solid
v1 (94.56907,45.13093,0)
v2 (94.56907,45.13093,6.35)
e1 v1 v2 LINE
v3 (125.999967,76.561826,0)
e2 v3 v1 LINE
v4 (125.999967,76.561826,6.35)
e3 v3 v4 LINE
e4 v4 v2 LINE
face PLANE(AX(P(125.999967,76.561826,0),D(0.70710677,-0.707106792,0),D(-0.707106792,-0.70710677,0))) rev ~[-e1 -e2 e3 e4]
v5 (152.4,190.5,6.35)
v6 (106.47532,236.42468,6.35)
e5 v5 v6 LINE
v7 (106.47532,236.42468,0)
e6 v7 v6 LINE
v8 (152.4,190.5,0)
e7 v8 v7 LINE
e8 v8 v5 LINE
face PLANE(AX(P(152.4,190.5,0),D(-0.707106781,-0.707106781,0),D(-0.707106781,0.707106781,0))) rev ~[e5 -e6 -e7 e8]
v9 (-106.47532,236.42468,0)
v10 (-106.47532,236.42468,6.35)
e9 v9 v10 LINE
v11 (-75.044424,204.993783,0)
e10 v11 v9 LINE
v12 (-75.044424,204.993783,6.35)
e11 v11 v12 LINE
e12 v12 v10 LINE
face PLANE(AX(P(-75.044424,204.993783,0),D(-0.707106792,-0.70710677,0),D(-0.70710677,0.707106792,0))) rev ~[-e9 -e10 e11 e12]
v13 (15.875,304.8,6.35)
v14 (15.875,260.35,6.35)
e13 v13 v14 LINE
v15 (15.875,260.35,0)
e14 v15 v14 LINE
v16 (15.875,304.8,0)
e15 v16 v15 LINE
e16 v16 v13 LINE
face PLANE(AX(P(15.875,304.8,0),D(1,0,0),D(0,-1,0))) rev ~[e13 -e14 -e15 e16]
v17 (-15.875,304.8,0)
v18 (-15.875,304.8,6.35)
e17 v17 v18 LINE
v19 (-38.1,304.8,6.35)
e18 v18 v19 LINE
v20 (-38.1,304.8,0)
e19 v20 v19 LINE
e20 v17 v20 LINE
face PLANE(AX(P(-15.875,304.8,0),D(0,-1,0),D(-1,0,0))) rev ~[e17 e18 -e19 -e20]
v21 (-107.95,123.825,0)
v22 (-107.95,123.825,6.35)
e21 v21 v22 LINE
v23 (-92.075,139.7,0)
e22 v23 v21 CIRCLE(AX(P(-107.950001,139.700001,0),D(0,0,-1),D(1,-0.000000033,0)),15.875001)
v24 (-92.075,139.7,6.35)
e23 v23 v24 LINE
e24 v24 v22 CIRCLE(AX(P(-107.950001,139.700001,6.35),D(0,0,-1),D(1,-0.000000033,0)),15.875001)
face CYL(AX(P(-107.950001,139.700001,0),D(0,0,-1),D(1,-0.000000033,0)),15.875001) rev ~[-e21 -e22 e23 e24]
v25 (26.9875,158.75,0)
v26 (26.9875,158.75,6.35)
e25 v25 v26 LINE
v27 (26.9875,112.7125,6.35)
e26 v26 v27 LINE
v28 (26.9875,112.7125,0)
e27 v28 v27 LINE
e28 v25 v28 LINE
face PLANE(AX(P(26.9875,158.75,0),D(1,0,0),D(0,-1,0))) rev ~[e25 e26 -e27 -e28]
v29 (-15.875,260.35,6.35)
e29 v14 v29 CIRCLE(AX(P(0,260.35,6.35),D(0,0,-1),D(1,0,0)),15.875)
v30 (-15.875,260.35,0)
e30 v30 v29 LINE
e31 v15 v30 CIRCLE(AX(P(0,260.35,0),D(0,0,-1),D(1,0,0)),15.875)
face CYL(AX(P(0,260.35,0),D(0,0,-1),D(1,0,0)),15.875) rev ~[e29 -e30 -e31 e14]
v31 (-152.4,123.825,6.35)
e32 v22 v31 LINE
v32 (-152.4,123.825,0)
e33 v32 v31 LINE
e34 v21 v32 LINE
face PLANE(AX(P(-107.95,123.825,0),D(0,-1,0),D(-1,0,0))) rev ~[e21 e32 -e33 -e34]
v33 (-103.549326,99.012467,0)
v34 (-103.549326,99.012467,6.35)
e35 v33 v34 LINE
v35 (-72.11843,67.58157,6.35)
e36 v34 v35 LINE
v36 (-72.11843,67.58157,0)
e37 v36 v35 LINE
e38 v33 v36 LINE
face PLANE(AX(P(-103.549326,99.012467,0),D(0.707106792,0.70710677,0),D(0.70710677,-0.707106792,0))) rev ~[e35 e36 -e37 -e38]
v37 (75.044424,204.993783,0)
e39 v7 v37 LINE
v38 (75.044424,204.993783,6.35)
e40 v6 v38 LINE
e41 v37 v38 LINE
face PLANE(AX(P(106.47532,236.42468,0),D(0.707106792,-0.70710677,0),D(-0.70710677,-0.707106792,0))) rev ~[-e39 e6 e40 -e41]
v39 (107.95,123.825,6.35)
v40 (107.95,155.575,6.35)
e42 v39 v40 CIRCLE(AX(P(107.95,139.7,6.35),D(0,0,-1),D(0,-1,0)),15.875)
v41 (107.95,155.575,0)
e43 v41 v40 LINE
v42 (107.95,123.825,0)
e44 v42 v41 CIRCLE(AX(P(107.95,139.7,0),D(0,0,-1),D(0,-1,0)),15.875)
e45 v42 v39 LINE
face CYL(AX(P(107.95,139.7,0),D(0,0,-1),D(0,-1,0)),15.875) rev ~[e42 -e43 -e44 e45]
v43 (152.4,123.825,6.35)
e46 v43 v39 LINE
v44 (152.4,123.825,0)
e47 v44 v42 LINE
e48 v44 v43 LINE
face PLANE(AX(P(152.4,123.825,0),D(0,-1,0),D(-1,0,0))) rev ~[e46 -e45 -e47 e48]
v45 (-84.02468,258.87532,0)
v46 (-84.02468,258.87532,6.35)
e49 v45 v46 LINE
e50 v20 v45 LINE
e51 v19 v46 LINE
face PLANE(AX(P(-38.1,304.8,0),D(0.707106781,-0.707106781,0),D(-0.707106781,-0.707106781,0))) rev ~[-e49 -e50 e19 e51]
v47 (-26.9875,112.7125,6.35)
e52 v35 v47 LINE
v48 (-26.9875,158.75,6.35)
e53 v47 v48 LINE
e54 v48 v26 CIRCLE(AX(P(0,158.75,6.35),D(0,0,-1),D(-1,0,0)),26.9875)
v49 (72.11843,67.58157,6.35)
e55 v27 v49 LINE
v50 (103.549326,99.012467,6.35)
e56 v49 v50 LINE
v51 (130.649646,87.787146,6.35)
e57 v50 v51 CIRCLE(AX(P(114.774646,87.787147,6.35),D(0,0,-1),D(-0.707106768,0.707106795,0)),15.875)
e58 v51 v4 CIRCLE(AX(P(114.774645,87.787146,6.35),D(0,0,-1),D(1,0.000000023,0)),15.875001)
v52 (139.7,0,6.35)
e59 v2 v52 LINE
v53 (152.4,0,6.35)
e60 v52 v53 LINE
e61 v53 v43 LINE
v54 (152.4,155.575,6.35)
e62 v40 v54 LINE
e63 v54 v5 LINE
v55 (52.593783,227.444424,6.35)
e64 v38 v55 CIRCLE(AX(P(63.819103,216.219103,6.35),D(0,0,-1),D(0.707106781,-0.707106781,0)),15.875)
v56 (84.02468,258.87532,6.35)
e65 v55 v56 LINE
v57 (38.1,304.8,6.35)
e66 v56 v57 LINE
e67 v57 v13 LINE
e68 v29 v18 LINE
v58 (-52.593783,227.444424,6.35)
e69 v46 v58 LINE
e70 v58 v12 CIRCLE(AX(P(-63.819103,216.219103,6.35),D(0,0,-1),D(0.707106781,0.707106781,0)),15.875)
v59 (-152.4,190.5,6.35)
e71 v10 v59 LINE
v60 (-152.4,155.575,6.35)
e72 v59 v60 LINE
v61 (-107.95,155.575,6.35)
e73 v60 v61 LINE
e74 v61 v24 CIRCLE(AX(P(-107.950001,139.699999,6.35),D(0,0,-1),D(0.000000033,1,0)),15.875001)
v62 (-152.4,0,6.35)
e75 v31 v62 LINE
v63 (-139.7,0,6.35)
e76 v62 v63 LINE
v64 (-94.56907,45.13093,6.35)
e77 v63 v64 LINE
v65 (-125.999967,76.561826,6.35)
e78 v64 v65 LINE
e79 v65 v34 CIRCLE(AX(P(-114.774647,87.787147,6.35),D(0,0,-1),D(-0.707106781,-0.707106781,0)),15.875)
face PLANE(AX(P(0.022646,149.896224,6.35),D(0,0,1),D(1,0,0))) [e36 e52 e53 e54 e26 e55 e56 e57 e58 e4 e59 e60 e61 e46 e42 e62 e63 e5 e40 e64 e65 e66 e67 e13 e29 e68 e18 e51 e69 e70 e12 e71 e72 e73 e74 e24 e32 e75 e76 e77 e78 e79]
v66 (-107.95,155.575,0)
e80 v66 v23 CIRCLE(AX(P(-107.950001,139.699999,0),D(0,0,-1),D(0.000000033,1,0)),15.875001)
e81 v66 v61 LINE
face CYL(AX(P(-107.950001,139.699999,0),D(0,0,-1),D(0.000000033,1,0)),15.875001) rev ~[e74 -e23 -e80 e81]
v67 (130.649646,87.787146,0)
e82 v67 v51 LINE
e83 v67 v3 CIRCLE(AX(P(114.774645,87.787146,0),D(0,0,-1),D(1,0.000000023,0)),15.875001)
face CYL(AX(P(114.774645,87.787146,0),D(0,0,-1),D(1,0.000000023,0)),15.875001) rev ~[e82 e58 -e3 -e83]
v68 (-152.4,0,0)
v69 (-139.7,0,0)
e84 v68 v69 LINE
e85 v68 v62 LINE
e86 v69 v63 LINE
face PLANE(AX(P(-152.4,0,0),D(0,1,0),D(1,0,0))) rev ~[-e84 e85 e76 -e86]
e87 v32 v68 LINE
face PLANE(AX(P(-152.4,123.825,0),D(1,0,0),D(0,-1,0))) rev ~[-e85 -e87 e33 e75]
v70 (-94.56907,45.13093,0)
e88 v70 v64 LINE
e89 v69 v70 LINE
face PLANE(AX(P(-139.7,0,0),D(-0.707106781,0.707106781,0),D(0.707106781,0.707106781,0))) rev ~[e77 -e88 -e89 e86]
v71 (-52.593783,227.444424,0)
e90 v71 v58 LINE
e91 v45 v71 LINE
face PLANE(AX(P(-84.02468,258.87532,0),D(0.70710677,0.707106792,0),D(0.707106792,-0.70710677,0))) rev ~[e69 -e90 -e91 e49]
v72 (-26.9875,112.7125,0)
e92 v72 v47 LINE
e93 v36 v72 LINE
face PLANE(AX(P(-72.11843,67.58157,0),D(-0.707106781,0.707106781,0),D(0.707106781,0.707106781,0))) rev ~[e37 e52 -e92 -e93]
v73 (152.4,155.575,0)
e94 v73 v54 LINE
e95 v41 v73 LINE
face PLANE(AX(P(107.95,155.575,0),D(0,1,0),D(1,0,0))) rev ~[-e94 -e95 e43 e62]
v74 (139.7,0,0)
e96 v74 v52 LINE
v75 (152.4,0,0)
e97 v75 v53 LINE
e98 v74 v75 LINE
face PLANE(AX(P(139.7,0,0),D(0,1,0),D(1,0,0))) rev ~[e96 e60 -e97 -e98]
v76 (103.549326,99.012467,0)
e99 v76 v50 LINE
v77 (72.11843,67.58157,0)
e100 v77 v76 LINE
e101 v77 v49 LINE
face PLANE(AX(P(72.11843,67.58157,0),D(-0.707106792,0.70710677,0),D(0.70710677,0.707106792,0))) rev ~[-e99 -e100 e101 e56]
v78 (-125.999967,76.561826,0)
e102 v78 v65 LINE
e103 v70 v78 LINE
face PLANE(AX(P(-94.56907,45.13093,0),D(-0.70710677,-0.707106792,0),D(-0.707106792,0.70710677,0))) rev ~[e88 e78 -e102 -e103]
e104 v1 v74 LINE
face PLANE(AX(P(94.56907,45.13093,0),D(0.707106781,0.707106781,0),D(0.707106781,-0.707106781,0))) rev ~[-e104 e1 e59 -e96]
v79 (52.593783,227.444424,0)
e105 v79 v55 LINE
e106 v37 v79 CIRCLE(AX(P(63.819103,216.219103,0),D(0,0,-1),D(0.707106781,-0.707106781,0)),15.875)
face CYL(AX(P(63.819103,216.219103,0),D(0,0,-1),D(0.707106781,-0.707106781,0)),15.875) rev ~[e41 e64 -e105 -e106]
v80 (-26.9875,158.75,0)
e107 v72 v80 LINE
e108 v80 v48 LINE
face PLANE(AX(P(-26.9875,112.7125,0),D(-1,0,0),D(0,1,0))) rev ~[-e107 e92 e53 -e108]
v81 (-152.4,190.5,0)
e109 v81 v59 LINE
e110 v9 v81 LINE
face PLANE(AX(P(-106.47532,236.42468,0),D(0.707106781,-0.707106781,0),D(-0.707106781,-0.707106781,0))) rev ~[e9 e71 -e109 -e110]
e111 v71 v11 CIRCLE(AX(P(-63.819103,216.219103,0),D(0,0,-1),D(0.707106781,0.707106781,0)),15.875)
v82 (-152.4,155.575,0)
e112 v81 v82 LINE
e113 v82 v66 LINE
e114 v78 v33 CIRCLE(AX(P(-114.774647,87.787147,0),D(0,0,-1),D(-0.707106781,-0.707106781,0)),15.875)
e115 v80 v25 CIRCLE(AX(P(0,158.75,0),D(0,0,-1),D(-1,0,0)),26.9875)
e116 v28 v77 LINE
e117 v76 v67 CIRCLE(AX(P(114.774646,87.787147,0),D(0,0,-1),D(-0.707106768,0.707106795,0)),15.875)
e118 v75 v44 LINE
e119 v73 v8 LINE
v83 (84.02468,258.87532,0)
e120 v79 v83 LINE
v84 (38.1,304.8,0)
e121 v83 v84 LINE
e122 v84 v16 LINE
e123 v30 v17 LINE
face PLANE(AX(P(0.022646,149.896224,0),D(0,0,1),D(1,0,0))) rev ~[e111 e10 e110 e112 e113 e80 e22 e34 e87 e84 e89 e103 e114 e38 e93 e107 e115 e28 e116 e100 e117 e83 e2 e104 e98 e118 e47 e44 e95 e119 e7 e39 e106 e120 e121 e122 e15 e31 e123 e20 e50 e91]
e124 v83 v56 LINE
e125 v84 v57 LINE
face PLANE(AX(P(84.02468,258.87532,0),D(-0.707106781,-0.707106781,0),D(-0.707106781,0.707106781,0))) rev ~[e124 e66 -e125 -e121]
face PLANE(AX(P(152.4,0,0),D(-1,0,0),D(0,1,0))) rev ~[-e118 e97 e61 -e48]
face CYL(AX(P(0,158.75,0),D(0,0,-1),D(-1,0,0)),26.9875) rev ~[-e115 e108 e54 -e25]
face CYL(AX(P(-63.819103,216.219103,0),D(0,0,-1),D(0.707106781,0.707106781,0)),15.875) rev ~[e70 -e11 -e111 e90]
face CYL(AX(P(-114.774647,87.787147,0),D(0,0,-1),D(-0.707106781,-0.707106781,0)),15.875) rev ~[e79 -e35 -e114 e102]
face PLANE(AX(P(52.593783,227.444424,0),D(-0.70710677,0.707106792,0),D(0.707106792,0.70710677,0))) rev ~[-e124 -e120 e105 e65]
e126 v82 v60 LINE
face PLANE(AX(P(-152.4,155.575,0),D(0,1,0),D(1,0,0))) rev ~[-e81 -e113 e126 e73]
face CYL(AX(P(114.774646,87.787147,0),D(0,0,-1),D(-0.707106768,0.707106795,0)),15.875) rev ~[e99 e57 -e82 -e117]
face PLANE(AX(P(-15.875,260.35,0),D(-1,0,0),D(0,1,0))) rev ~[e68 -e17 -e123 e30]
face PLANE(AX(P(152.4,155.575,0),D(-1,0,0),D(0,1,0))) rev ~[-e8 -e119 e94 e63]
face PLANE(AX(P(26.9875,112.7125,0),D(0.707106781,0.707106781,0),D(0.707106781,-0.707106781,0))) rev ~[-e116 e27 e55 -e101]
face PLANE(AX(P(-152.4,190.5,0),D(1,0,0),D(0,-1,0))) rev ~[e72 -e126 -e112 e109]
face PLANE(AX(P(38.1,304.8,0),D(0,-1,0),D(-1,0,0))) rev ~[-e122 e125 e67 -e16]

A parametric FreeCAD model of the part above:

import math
import FreeCAD as App
import Part
import Sketcher
from FreeCAD import Vector
Q = App.Units.Quantity

doc = App.newDocument("Part")
body = doc.addObject("PartDesign::Body", "Body")

sketch1 = body.newObject("Sketcher::SketchObject", "Sketch")
sketch1.AttachmentSupport = (doc.getObject("XY_Plane"), [""])
sketch1.MapMode = "FlatFace"
sketch1.addGeometry([
    Part.LineSegment(Vector(-152, 124, 0), Vector(-152, 0, 0)),
    Part.LineSegment(Vector(-152, 0, 0), Vector(-140, 0, 0)),
    Part.LineSegment(Vector(-140, 0, 0), Vector(-95, 45, 0)),
    Part.LineSegment(Vector(-95, 45, 0), Vector(-126, 77, 0)),
    Part.ArcOfCircle(Part.Circle(Vector(-115, 88, 0), Vector(0, 0, 1), 16), math.radians(45), math.radians(225)),
    Part.LineSegment(Vector(-104, 99, 0), Vector(-72, 68, 0)),
    Part.LineSegment(Vector(-72, 68, 0), Vector(-27, 113, 0)),
    Part.LineSegment(Vector(-27, 113, 0), Vector(-27, 159, 0)),
    Part.ArcOfCircle(Part.Circle(Vector(0, 159, 0), Vector(0, 0, 1), 27), math.radians(0), math.radians(180)),
    Part.LineSegment(Vector(27, 159, 0), Vector(27, 113, 0)),
    Part.LineSegment(Vector(27, 113, 0), Vector(72, 68, 0)),
    Part.LineSegment(Vector(72, 68, 0), Vector(104, 99, 0)),
    Part.ArcOfCircle(Part.Circle(Vector(115, 88, 0), Vector(0, 0, 1), 16), math.radians(0), math.radians(135)),
    Part.ArcOfCircle(Part.Circle(Vector(115, 88, 0), Vector(0, 0, 1), 16), math.radians(-45), math.radians(0)),
    Part.LineSegment(Vector(126, 77, 0), Vector(95, 45, 0)),
    Part.LineSegment(Vector(95, 45, 0), Vector(140, 0, 0)),
    Part.LineSegment(Vector(140, 0, 0), Vector(152, 0, 0)),
    Part.LineSegment(Vector(152, 0, 0), Vector(152, 124, 0)),
    Part.LineSegment(Vector(152, 124, 0), Vector(108, 124, 0)),
    Part.ArcOfCircle(Part.Circle(Vector(108, 140, 0), Vector(0, 0, 1), 16), math.radians(90), math.radians(270)),
    Part.LineSegment(Vector(108, 156, 0), Vector(152, 156, 0)),
    Part.LineSegment(Vector(152, 156, 0), Vector(152, 190, 0)),
    Part.LineSegment(Vector(152, 190, 0), Vector(106, 236, 0)),
    Part.LineSegment(Vector(106, 236, 0), Vector(75, 205, 0)),
    Part.ArcOfCircle(Part.Circle(Vector(64, 216, 0), Vector(0, 0, 1), 16), math.radians(135), math.radians(315)),
    Part.LineSegment(Vector(53, 227, 0), Vector(84, 259, 0)),
    Part.LineSegment(Vector(84, 259, 0), Vector(38, 305, 0)),
    Part.LineSegment(Vector(38, 305, 0), Vector(16, 305, 0)),
    Part.LineSegment(Vector(16, 305, 0), Vector(16, 260, 0)),
    Part.ArcOfCircle(Part.Circle(Vector(0, 260, 0), Vector(0, 0, 1), 16), math.radians(180), math.radians(360)),
    Part.LineSegment(Vector(-16, 260, 0), Vector(-16, 305, 0)),
    Part.LineSegment(Vector(-16, 305, 0), Vector(-38, 305, 0)),
    Part.LineSegment(Vector(-38, 305, 0), Vector(-84, 259, 0)),
    Part.LineSegment(Vector(-84, 259, 0), Vector(-53, 227, 0)),
    Part.ArcOfCircle(Part.Circle(Vector(-64, 216, 0), Vector(0, 0, 1), 16), math.radians(-135), math.radians(45)),
    Part.LineSegment(Vector(-75, 205, 0), Vector(-106, 236, 0)),
    Part.LineSegment(Vector(-106, 236, 0), Vector(-152, 190, 0)),
    Part.LineSegment(Vector(-152, 190, 0), Vector(-152, 156, 0)),
    Part.LineSegment(Vector(-152, 156, 0), Vector(-108, 156, 0)),
    Part.ArcOfCircle(Part.Circle(Vector(-108, 140, 0), Vector(0, 0, 1), 16), math.radians(0), math.radians(90)),
    Part.ArcOfCircle(Part.Circle(Vector(-108, 140, 0), Vector(0, 0, 1), 16), math.radians(-90), math.radians(0)),
    Part.LineSegment(Vector(-108, 124, 0), Vector(-152, 124, 0)),
], False)
sketch1.addConstraint([
    Sketcher.Constraint("Coincident", 0, 2, 1, 1),
    Sketcher.Constraint("Coincident", 1, 2, 2, 1),
    Sketcher.Constraint("Coincident", 2, 2, 3, 1),
    Sketcher.Constraint("Tangent", 3, 2, 4, 2),
    Sketcher.Constraint("Tangent", 4, 1, 5, 1),
    Sketcher.Constraint("Coincident", 5, 2, 6, 1),
    Sketcher.Constraint("Coincident", 6, 2, 7, 1),
    Sketcher.Constraint("Tangent", 7, 2, 8, 2),
    Sketcher.Constraint("Tangent", 8, 1, 9, 1),
    Sketcher.Constraint("Coincident", 9, 2, 10, 1),
    Sketcher.Constraint("Coincident", 10, 2, 11, 1),
    Sketcher.Constraint("Tangent", 11, 2, 12, 2),
    Sketcher.Constraint("Tangent", 12, 1, 13, 2),
    Sketcher.Constraint("Tangent", 13, 1, 14, 1),
    Sketcher.Constraint("Coincident", 14, 2, 15, 1),
    Sketcher.Constraint("Coincident", 15, 2, 16, 1),
    Sketcher.Constraint("Coincident", 16, 2, 17, 1),
    Sketcher.Constraint("Coincident", 17, 2, 18, 1),
    Sketcher.Constraint("Tangent", 18, 2, 19, 2),
    Sketcher.Constraint("Tangent", 19, 1, 20, 1),
    Sketcher.Constraint("Coincident", 20, 2, 21, 1),
    Sketcher.Constraint("Coincident", 21, 2, 22, 1),
    Sketcher.Constraint("Coincident", 22, 2, 23, 1),
    Sketcher.Constraint("Tangent", 23, 2, 24, 2),
    Sketcher.Constraint("Tangent", 24, 1, 25, 1),
    Sketcher.Constraint("Coincident", 25, 2, 26, 1),
    Sketcher.Constraint("Coincident", 26, 2, 27, 1),
    Sketcher.Constraint("Coincident", 27, 2, 28, 1),
    Sketcher.Constraint("Tangent", 28, 2, 29, 2),
    Sketcher.Constraint("Tangent", 29, 1, 30, 1),
    Sketcher.Constraint("Coincident", 30, 2, 31, 1),
    Sketcher.Constraint("Coincident", 31, 2, 32, 1),
    Sketcher.Constraint("Coincident", 32, 2, 33, 1),
    Sketcher.Constraint("Tangent", 33, 2, 34, 2),
    Sketcher.Constraint("Tangent", 34, 1, 35, 1),
    Sketcher.Constraint("Coincident", 35, 2, 36, 1),
    Sketcher.Constraint("Coincident", 36, 2, 37, 1),
    Sketcher.Constraint("Coincident", 37, 2, 38, 1),
    Sketcher.Constraint("Tangent", 38, 2, 39, 2),
    Sketcher.Constraint("Tangent", 39, 1, 40, 2),
    Sketcher.Constraint("Tangent", 40, 1, 41, 1),
    Sketcher.Constraint("Coincident", 41, 2, 0, 1),
    Sketcher.Constraint("Vertical", 0),
    Sketcher.Constraint("Horizontal", 1),
    Sketcher.Constraint("Vertical", 7),
    Sketcher.Constraint("Vertical", 9),
    Sketcher.Constraint("Horizontal", 16),
    Sketcher.Constraint("Vertical", 17),
    Sketcher.Constraint("Horizontal", 18),
    Sketcher.Constraint("Horizontal", 20),
    Sketcher.Constraint("Vertical", 21),
    Sketcher.Constraint("Horizontal", 27),
    Sketcher.Constraint("Vertical", 28),
    Sketcher.Constraint("Vertical", 30),
    Sketcher.Constraint("Horizontal", 31),
    Sketcher.Constraint("Vertical", 37),
    Sketcher.Constraint("Horizontal", 38),
    Sketcher.Constraint("Horizontal", 41),
    Sketcher.Constraint("Equal", 4, 12),
    Sketcher.Constraint("Equal", 12, 13),
    Sketcher.Constraint("Equal", 13, 19),
    Sketcher.Constraint("Equal", 19, 24),
    Sketcher.Constraint("Equal", 24, 29),
    Sketcher.Constraint("Equal", 29, 34),
    Sketcher.Constraint("Equal", 34, 39),
    Sketcher.Constraint("Equal", 39, 40),
    Sketcher.Constraint("Symmetric", 1, 2, 15, 2, -1, 1),
    Sketcher.Constraint("Symmetric", 4, 3, 12, 3, -2),
    Sketcher.Constraint("Symmetric", 24, 3, 34, 3, -2),
    Sketcher.Constraint("Symmetric", 19, 3, 39, 3, -2),
    Sketcher.Constraint("Symmetric", 6, 2, 9, 2, -2),
    Sketcher.Constraint("Symmetric", 5, 2, 10, 2, -2),
    Sketcher.Constraint("Symmetric", 2, 2, 14, 2, -2),
    Sketcher.Constraint("Symmetric", 0, 2, 16, 2, -2),
    Sketcher.Constraint("Symmetric", 27, 2, 30, 2, -2),
    Sketcher.Constraint("Symmetric", 25, 2, 32, 2, -2),
    Sketcher.Constraint("Symmetric", 22, 2, 35, 2, -2),
    Sketcher.Constraint("Symmetric", 21, 2, 36, 2, -2),
    Sketcher.Constraint("Perpendicular", 2, 3),
    Sketcher.Constraint("Parallel", 3, 5),
    Sketcher.Constraint("Perpendicular", 5, 6),
    Sketcher.Constraint("Perpendicular", 6, 10),
    Sketcher.Constraint("Parallel", 15, 22),
    Sketcher.Constraint("Perpendicular", 22, 23),
    Sketcher.Constraint("Parallel", 23, 25),
    Sketcher.Constraint("Perpendicular", 25, 26),
    Sketcher.Constraint("Perpendicular", 26, 32),
    Sketcher.Constraint("Horizontal", 13, 3, 12, 1),
    Sketcher.Constraint("Horizontal", 40, 3, 39, 1),
    Sketcher.Constraint("Vertical", 17, 2, 20, 2),
    Sketcher.Constraint("Equal", 41, 28),
    Sketcher.Constraint("Equal", 3, 5),
    Sketcher.Constraint("Equal", 2, 6),
    Sketcher.Constraint("Equal", 14, 23),
    Sketcher.Constraint("Equal", 23, 25),
    Sketcher.Constraint("Equal", 22, 26),
    Sketcher.Constraint("DistanceX", 1, 1, 1, 2, Q("0.5 in")),
    Sketcher.Constraint("DistanceX", 0, 2, -1, 1, Q("6 in")),
    Sketcher.Constraint("DistanceY", -1, 1, 26, 2, Q("12 in")),
    Sketcher.Constraint("Radius", 4, Q("0.625 in")),
    Sketcher.Constraint("Radius", 8, Q("1.0625 in")),
    Sketcher.Constraint("DistanceY", 8, 3, 29, 3, Q("4 in")),
    Sketcher.Constraint("DistanceY", 19, 3, 21, 2, Q("2 in")),
    Sketcher.Constraint("DistanceX", 18, 2, 18, 1, Q("1.75 in")),
    Sketcher.Constraint("DistanceY", -1, 1, 19, 3, Q("5.5 in")),
    Sketcher.Constraint("Distance", 3, Q("1.75 in")),
])
pad1 = body.newObject("PartDesign::Pad", "Pad")
pad1.Profile = sketch1
pad1.Length = Q("0.25 in")

doc.recompute()
